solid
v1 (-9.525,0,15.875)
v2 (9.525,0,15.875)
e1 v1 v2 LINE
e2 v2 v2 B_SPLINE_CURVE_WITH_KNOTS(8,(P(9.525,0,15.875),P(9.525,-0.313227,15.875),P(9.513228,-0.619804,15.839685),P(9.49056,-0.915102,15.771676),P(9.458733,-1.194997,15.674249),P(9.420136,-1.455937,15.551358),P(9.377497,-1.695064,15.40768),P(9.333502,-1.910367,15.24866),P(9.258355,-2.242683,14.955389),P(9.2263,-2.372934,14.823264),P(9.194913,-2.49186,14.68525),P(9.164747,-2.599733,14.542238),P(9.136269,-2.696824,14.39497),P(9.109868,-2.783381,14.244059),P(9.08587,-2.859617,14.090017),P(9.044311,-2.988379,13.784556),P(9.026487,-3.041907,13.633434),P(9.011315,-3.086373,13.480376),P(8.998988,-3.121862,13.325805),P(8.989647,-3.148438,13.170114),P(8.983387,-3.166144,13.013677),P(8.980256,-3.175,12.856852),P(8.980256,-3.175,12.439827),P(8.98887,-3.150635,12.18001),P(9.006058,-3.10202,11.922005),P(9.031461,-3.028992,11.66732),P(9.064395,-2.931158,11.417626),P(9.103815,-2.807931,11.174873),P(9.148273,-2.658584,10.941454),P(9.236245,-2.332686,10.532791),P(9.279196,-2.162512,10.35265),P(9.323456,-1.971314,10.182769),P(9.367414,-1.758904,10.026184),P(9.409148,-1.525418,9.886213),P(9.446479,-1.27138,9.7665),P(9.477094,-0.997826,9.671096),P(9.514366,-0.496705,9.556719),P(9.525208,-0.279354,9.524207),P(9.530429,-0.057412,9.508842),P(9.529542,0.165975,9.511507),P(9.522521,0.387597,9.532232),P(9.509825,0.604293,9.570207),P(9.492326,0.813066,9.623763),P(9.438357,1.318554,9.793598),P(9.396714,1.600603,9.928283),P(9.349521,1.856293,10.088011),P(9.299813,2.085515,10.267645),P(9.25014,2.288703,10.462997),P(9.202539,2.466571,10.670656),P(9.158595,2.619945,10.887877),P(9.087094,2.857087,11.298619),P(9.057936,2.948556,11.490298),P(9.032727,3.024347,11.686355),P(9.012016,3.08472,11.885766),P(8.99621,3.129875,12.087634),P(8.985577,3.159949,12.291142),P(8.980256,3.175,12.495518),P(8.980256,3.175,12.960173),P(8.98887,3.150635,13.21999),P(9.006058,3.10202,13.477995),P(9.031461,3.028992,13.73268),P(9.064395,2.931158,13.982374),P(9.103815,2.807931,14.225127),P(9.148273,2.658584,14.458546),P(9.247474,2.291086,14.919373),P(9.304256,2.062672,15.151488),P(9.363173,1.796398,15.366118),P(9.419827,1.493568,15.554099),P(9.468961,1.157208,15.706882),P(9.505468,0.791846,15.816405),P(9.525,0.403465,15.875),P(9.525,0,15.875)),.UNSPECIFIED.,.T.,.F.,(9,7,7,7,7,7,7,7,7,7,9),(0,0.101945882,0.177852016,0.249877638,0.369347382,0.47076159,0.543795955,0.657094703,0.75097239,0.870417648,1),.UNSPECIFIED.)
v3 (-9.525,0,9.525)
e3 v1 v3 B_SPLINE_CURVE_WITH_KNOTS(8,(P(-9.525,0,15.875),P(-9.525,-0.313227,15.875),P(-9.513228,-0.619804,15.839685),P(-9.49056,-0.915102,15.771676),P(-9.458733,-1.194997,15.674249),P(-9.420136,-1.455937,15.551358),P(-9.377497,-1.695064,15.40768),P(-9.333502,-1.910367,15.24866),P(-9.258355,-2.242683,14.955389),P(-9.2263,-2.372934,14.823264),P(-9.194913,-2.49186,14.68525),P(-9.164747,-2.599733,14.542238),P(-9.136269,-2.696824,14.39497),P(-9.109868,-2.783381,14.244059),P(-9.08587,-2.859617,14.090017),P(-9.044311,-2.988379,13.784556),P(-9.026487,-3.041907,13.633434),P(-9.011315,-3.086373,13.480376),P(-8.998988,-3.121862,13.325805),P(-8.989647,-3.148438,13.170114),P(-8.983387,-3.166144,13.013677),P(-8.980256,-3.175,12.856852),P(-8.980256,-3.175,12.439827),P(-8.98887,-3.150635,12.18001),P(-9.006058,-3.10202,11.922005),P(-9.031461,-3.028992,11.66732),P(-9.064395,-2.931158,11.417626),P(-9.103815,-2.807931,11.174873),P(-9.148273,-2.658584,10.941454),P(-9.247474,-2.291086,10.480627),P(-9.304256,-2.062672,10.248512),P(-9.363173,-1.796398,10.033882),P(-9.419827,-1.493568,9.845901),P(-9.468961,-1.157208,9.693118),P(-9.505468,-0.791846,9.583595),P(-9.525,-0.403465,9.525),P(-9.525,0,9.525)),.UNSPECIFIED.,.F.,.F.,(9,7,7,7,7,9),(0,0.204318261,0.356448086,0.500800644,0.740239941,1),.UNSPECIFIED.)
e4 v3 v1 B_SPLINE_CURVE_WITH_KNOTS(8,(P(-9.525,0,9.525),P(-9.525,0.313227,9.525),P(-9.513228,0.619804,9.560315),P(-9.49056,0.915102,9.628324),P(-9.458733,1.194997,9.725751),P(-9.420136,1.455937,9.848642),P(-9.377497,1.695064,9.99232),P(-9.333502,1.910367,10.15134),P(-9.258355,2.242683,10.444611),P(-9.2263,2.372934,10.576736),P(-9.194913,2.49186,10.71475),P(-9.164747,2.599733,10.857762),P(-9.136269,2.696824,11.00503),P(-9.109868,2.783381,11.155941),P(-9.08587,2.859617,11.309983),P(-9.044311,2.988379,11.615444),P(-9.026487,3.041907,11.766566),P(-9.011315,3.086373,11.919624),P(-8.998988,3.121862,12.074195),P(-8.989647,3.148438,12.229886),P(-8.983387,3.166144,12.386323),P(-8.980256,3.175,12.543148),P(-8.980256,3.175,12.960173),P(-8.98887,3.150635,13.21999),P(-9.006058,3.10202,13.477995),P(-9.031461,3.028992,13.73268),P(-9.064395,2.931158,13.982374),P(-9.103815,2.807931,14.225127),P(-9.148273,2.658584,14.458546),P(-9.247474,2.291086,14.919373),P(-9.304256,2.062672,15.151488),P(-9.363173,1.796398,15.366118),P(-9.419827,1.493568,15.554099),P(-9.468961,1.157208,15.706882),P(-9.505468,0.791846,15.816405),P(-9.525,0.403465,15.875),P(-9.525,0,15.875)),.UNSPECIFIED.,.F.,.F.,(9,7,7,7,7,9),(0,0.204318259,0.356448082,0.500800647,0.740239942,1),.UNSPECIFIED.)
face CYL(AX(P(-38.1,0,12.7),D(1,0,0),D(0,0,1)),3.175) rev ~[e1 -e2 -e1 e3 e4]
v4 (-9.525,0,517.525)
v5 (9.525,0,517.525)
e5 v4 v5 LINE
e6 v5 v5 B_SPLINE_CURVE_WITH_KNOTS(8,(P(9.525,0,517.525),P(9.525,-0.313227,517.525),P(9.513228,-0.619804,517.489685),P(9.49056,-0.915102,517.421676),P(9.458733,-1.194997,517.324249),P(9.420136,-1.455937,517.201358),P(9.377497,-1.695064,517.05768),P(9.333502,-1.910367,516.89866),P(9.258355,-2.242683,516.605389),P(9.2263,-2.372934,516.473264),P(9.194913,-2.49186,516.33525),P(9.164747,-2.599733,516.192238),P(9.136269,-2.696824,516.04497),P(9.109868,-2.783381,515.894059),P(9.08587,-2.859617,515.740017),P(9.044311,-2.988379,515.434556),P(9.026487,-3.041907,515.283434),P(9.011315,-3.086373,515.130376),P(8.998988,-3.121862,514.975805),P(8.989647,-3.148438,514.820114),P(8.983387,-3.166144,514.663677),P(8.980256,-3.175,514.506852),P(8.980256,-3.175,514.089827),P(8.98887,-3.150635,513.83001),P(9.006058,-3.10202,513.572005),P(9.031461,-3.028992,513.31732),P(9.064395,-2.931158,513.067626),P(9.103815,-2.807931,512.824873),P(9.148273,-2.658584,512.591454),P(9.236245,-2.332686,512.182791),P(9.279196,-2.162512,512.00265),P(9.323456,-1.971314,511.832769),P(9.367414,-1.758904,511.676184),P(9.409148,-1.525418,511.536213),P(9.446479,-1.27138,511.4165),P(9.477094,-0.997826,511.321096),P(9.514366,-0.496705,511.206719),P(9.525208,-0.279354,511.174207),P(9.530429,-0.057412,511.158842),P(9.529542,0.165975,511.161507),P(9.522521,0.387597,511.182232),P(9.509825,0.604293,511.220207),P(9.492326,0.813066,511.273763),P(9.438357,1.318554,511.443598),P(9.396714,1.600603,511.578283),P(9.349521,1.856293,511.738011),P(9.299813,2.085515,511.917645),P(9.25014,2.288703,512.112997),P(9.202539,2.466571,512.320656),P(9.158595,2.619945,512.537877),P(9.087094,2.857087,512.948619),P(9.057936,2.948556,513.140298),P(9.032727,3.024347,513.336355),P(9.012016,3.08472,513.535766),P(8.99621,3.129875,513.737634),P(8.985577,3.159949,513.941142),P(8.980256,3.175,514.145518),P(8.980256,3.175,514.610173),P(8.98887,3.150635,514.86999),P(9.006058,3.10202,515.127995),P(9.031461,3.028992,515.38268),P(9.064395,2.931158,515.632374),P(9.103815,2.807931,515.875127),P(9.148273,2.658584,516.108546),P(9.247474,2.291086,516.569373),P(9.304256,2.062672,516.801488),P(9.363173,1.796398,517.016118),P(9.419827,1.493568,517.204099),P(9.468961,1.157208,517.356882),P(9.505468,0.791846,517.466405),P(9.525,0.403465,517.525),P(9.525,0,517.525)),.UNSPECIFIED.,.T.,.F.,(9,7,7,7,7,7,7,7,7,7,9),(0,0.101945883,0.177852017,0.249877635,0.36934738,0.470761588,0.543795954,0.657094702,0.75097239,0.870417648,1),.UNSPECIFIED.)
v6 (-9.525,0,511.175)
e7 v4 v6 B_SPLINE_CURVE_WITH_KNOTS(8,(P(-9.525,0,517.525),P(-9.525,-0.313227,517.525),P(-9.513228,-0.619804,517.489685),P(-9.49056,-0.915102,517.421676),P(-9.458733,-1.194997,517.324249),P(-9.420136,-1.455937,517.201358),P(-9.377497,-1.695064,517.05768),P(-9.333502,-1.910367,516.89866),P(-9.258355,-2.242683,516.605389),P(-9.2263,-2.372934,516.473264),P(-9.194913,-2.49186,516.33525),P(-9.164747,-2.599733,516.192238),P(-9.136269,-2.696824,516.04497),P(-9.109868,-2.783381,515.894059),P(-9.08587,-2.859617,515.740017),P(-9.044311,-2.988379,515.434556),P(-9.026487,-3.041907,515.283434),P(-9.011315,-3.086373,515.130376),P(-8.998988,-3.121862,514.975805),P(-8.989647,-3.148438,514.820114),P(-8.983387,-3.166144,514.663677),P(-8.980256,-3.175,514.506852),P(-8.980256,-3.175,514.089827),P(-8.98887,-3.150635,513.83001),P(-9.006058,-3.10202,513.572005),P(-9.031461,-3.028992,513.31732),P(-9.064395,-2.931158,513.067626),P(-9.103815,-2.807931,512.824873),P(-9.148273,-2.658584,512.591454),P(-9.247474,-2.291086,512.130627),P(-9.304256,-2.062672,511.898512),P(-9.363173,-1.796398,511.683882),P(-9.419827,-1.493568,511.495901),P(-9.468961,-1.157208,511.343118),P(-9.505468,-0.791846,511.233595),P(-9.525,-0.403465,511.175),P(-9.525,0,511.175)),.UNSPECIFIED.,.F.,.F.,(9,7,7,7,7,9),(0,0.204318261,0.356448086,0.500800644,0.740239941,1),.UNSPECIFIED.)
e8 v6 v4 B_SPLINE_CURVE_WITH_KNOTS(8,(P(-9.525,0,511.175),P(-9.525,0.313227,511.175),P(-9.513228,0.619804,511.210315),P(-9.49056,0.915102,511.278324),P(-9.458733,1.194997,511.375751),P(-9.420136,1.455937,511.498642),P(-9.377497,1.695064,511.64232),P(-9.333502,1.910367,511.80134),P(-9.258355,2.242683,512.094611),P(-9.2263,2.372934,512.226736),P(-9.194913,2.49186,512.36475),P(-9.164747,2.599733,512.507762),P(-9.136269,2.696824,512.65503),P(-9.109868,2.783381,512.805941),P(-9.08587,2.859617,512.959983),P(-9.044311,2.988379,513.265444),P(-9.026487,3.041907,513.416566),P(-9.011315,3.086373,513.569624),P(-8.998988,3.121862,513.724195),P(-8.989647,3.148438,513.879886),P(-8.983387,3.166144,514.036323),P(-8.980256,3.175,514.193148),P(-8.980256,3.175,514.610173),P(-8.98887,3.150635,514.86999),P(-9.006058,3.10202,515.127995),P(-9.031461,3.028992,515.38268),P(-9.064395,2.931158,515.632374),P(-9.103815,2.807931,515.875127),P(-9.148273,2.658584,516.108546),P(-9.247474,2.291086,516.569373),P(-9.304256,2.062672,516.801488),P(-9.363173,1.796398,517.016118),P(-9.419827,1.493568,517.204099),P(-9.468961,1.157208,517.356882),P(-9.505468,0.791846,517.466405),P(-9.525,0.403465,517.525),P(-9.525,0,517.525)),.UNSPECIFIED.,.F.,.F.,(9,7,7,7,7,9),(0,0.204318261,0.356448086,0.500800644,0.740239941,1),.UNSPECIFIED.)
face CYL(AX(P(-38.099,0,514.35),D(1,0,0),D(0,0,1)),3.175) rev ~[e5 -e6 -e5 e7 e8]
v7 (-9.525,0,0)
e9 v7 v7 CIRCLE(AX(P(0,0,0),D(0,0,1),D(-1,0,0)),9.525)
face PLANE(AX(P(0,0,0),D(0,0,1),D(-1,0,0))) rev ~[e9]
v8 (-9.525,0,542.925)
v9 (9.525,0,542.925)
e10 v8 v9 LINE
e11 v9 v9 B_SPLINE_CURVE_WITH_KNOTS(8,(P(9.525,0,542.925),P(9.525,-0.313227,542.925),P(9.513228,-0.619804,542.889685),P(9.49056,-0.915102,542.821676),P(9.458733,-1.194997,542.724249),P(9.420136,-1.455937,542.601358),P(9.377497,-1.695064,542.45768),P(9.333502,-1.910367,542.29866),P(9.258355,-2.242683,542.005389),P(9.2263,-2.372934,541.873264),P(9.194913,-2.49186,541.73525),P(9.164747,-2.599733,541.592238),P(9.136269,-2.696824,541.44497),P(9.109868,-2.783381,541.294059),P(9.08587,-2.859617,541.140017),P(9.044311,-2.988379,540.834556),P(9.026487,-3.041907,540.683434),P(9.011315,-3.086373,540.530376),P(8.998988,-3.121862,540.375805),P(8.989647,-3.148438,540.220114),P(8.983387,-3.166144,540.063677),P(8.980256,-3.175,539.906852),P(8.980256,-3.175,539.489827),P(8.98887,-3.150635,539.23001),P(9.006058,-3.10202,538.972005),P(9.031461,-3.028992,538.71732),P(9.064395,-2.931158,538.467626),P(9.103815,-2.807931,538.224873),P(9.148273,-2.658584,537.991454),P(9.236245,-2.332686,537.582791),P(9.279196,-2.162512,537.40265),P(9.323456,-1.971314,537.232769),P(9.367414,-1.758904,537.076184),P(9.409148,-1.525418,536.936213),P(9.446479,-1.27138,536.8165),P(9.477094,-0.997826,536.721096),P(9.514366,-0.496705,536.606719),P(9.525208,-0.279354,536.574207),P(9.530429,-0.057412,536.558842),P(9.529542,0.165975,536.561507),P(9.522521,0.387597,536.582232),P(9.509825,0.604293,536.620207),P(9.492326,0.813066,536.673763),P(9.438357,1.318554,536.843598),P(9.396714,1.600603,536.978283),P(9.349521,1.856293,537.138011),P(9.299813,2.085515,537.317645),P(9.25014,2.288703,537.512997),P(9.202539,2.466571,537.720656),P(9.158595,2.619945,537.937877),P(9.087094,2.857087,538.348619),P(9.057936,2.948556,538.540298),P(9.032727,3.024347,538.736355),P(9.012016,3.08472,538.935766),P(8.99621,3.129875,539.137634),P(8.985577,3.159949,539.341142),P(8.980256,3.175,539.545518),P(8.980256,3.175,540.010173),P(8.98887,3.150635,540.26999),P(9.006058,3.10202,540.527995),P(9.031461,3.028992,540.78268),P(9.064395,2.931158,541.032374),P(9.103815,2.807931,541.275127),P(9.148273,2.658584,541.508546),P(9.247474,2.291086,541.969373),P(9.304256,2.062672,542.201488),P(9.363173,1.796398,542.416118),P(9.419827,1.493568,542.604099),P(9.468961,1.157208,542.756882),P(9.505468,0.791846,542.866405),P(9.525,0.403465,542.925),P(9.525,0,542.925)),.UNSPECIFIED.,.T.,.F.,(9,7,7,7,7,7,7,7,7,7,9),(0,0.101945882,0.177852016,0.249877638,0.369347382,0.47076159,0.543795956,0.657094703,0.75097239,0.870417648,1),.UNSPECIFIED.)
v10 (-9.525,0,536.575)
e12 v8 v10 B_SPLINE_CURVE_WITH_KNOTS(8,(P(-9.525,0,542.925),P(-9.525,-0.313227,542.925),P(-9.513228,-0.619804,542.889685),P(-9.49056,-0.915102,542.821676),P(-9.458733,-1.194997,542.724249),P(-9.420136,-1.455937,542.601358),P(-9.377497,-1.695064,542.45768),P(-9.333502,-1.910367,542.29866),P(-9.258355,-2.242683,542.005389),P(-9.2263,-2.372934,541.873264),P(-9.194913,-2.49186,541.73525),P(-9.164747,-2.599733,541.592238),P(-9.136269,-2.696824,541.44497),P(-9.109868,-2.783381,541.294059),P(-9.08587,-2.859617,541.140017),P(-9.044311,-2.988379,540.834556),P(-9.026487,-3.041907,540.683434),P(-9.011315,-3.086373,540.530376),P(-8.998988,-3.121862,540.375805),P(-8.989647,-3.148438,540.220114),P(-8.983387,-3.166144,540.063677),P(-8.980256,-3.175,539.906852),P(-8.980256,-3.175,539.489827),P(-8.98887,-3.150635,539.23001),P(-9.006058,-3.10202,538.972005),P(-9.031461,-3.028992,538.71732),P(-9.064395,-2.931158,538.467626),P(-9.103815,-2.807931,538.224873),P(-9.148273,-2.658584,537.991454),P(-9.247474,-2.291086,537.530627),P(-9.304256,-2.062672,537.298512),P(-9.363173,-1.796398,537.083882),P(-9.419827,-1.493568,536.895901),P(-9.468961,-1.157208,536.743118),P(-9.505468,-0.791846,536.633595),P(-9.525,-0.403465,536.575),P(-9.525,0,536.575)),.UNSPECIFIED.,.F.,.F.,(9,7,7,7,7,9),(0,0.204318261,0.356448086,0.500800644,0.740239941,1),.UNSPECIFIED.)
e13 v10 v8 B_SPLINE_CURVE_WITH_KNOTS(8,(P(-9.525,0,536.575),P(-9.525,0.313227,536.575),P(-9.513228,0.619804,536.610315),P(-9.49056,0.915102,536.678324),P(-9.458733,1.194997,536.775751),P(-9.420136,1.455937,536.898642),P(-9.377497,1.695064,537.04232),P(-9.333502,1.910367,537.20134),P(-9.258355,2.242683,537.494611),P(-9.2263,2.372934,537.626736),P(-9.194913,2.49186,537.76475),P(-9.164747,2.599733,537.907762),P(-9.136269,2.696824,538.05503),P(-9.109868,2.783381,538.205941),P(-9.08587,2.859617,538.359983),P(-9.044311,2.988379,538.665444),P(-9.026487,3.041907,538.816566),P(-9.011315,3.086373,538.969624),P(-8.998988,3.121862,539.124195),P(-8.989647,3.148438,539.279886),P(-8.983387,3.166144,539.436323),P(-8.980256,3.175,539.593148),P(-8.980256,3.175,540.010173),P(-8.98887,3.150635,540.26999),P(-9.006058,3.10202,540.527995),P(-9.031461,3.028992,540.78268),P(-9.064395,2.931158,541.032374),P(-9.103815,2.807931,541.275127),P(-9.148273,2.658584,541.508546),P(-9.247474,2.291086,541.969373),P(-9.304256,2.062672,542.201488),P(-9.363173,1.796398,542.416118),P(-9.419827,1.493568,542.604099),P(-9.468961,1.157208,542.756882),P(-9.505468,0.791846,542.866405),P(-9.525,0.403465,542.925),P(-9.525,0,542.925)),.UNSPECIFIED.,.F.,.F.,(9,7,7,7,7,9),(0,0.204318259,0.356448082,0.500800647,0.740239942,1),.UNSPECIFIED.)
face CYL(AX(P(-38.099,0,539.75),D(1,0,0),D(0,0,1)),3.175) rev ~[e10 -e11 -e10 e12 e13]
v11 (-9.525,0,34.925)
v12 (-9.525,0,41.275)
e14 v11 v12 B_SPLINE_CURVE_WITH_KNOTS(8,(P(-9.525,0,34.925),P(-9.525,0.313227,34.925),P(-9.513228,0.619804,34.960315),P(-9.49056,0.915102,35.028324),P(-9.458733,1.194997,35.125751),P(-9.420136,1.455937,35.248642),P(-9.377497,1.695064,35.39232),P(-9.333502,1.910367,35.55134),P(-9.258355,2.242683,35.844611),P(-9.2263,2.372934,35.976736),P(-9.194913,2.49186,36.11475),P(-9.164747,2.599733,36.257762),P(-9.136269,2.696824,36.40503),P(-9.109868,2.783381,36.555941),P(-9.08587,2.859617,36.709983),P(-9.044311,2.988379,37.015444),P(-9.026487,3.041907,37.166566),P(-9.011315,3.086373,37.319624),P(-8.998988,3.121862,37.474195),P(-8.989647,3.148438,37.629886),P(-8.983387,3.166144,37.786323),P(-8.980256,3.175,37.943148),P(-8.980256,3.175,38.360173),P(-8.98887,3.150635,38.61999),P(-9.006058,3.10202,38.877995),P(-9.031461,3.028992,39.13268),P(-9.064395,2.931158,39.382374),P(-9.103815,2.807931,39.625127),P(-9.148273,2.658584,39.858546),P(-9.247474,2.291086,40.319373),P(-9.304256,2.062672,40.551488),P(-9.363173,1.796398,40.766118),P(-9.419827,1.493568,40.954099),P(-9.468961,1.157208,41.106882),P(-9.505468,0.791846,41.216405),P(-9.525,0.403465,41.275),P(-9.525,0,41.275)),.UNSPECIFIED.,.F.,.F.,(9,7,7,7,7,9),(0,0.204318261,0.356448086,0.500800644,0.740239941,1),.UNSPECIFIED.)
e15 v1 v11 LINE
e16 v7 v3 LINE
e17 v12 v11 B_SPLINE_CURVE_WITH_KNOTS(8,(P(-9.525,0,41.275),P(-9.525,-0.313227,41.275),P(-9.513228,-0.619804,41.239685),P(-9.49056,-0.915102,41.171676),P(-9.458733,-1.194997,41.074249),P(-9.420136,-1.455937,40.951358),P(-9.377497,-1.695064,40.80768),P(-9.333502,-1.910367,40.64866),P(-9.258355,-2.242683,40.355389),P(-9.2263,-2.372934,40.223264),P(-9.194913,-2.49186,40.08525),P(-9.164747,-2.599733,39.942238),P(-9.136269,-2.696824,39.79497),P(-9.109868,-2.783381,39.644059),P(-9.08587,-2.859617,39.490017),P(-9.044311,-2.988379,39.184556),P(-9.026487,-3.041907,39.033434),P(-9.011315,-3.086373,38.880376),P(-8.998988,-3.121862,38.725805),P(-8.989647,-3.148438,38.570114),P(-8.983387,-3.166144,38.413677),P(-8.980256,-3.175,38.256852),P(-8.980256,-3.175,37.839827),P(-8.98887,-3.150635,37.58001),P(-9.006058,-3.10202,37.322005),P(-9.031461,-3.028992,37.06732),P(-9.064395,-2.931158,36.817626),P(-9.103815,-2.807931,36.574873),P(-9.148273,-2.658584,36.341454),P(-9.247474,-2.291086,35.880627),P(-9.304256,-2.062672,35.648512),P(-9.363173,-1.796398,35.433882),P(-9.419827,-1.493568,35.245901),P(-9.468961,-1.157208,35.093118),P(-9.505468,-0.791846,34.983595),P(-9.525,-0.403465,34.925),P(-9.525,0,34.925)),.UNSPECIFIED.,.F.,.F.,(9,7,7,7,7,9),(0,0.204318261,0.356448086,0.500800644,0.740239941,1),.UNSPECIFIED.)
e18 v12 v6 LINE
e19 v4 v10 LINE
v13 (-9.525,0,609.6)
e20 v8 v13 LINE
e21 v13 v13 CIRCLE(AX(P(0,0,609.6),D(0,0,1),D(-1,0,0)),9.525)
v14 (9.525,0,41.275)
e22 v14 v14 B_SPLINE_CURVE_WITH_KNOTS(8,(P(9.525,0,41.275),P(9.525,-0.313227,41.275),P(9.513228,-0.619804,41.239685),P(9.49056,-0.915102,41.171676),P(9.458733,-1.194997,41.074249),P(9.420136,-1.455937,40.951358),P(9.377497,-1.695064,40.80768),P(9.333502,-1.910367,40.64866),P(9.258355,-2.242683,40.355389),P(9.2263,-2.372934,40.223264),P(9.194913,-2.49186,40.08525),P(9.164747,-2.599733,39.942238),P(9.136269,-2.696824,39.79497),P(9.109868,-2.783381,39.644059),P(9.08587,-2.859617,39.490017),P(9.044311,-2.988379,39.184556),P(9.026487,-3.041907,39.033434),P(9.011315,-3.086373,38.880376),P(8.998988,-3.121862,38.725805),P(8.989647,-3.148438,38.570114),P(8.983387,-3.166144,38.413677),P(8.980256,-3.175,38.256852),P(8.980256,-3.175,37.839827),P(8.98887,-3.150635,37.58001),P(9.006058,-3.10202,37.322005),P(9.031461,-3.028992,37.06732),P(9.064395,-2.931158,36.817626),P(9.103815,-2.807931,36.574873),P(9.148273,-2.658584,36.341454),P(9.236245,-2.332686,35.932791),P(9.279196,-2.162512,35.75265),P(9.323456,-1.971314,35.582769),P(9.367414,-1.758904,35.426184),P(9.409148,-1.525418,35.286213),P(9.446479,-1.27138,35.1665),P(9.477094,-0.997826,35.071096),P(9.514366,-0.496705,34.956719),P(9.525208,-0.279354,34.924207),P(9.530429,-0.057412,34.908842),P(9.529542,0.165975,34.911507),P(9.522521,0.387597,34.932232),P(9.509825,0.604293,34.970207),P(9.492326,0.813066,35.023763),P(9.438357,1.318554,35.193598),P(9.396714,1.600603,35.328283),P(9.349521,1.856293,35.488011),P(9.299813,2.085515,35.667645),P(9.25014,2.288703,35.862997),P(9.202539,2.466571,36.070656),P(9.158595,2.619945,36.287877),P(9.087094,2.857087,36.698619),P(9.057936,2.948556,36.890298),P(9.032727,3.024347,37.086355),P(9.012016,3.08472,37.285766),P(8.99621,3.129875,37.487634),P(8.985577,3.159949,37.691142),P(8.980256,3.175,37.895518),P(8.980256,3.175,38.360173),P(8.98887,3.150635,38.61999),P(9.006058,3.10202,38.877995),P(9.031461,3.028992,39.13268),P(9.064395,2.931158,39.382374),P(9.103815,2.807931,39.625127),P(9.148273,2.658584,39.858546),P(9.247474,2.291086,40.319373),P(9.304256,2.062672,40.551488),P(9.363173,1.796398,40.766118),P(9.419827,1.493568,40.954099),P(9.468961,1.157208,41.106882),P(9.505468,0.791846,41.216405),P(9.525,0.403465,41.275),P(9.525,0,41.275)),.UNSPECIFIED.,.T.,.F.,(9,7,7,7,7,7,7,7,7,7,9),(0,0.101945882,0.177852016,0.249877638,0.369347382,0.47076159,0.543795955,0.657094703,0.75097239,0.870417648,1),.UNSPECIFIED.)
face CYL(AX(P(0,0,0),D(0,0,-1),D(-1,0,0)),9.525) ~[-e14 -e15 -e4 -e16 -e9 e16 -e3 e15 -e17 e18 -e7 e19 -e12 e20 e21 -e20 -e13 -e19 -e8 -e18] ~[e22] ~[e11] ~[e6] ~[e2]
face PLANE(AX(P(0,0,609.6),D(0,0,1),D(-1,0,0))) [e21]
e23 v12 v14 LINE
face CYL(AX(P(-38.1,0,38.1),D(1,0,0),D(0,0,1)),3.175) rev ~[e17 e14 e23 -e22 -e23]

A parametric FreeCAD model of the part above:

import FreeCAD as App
import Part
import Sketcher
Q = App.Units.Quantity

doc = App.newDocument("Part")
params = doc.addObject("Spreadsheet::Sheet", "Params")
for row, (alias, value) in enumerate([
    ("sketch1_diameter", "0.75 in"),
    ("pad1_length", "24 in"),
    ("sketch2_diameter", "0.25 in"),
    ("hole_diameter", "0.25 in"),
    ("hole_depth", "25.399 mm"),
    ("sketch3_diameter", "0.25 in"),
    ("hole2_diameter", "0.25 in"),
    ("hole2_depth", "1 in"),
], start=1):
    params.set(f"A{row}", alias)
    params.set(f"B{row}", "=" + value)
    params.setAlias(f"B{row}", alias)

body = doc.addObject("PartDesign::Body", "Body")

# Sketch on XY plane
sketch1 = body.newObject("Sketcher::SketchObject", "Sketch")
sketch1.AttachmentSupport = (doc.getObject("XY_Plane"), [""])
sketch1.MapMode = "FlatFace"
sketch1.addGeometry(Part.Circle(App.Vector(0, 0, 0), App.Vector(0, 0, 1), 9.525), False)
sketch1.addConstraint([
    Sketcher.Constraint("Coincident", 0, 3, -1, 1),
    Sketcher.Constraint("Diameter", 0, Q("0.75 in")),
])
sketch1.setExpression("Constraints[1]", "Params.sketch1_diameter")
pad1 = body.newObject("PartDesign::Pad", "Pad")
pad1.Profile = sketch1
pad1.setExpression("Length", "Params.pad1_length")

# Sketch on YZ plane
sketch2 = body.newObject("Sketcher::SketchObject", "Sketch001")
sketch2.AttachmentSupport = (doc.getObject("YZ_Plane"), [""])
sketch2.MapMode = "FlatFace"
sketch2.AttachmentOffset = App.Placement(App.Vector(0, 0, -0.5 * 25.4), App.Rotation())
sketch2.addGeometry([
    Part.Circle(App.Vector(0, 514.35, 0), App.Vector(0, 0, 1), 3.175),
    Part.Circle(App.Vector(0, 539.75, 0), App.Vector(0, 0, 1), 3.175),
], False)
sketch2.addConstraint([
    Sketcher.Constraint("Equal", 0, 1),
    Sketcher.Constraint("PointOnObject", 0, 3, -2),
    Sketcher.Constraint("PointOnObject", 1, 3, -2),
    Sketcher.Constraint("Diameter", 0, Q("0.25 in")),
    Sketcher.Constraint("DistanceY", 0, 3, 1, 3, Q("1 in")),
    Sketcher.Constraint("DistanceY", -1, 1, 0, 3, Q("20.25 in")),
])
sketch2.setExpression("Constraints[3]", "Params.sketch2_diameter")
doc.recompute()
hole = body.newObject("PartDesign::Hole", "Hole")
hole.Profile = sketch2
hole.ThreadType = "None"
hole.setExpression("Diameter", "Params.hole_diameter")
hole.DepthType = "Dimension"
hole.setExpression("Depth", "Params.hole_depth")
hole.DrillPoint = "Angled"
hole.DrillPointAngle = 118
hole.Reversed = True

# Sketch on YZ plane
sketch3 = body.newObject("Sketcher::SketchObject", "Sketch002")
sketch3.AttachmentSupport = (doc.getObject("YZ_Plane"), [""])
sketch3.MapMode = "FlatFace"
sketch3.AttachmentOffset = App.Placement(App.Vector(0, 0, -0.5 * 25.4), App.Rotation())
sketch3.addGeometry([
    Part.Circle(App.Vector(0, 38.1, 0), App.Vector(0, 0, 1), 3.175),
    Part.Circle(App.Vector(0, 12.7, 0), App.Vector(0, 0, 1), 3.175),
], False)
sketch3.addConstraint([
    Sketcher.Constraint("Equal", 0, 1),
    Sketcher.Constraint("PointOnObject", 0, 3, -2),
    Sketcher.Constraint("PointOnObject", 1, 3, -2),
    Sketcher.Constraint("Diameter", 0, Q("0.25 in")),
    Sketcher.Constraint("DistanceY", 1, 3, 0, 3, Q("1 in")),
    Sketcher.Constraint("DistanceY", -1, 1, 0, 3, Q("1.5 in")),
])
sketch3.setExpression("Constraints[3]", "Params.sketch3_diameter")
doc.recompute()
hole2 = body.newObject("PartDesign::Hole", "Hole001")
hole2.Profile = sketch3
hole2.ThreadType = "None"
hole2.setExpression("Diameter", "Params.hole2_diameter")
hole2.DepthType = "Dimension"
hole2.setExpression("Depth", "Params.hole2_depth")
hole2.DrillPoint = "Angled"
hole2.DrillPointAngle = 118
hole2.Reversed = True

doc.recompute()
